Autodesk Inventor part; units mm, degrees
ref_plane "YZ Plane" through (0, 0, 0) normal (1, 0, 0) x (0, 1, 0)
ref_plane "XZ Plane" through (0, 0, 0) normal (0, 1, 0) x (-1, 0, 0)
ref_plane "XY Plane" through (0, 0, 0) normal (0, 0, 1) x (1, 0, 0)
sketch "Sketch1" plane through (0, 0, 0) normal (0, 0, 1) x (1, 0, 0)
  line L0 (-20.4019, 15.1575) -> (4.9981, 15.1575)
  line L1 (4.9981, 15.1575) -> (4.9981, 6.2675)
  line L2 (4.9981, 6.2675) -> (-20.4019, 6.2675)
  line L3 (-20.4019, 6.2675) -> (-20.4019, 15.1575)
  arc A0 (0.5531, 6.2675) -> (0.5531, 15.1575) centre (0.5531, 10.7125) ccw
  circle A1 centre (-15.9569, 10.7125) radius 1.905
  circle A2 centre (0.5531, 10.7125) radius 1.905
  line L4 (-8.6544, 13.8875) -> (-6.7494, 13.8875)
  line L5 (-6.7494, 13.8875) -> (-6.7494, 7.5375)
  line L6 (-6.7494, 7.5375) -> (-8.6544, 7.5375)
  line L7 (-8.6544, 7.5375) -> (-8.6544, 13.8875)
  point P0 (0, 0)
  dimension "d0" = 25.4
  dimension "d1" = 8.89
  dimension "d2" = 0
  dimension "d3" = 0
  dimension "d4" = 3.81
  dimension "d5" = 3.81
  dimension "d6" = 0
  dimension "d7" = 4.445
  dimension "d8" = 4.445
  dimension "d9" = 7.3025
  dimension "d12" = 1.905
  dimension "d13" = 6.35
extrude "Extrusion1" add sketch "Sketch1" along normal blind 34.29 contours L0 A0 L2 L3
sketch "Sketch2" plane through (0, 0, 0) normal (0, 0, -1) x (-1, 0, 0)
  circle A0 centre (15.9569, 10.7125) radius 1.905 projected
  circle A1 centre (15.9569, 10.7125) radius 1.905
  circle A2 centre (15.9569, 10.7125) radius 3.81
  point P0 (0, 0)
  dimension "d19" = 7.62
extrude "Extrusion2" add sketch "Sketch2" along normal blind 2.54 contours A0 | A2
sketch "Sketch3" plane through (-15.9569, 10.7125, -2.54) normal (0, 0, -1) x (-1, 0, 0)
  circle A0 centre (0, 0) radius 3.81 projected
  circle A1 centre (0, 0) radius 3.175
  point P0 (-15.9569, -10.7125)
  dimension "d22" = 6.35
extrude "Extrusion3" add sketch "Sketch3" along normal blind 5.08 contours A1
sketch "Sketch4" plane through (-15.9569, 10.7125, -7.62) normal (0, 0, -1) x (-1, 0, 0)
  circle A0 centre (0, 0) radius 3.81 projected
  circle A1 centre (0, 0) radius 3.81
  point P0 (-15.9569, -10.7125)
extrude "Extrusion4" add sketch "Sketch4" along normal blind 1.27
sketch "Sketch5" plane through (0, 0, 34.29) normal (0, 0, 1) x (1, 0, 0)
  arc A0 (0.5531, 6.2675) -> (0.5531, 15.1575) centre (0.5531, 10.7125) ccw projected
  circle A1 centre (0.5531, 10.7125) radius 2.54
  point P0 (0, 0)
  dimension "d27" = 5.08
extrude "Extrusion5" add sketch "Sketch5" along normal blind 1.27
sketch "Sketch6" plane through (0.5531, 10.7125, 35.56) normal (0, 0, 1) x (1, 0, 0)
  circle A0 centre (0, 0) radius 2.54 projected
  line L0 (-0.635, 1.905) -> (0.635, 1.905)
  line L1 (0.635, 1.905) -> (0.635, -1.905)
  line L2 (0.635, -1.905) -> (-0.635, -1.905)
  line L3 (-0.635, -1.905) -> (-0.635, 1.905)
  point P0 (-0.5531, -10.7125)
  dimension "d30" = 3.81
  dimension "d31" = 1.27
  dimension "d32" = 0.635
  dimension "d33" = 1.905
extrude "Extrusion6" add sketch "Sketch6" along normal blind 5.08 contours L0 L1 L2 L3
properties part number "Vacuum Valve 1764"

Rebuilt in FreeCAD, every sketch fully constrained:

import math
import FreeCAD as App
import Part
import Sketcher
from FreeCAD import Vector
Q = App.Units.Quantity

doc = App.newDocument("Part")
body = doc.addObject("PartDesign::Body", "Body")

# Sketch on XY plane
sketch1 = body.newObject("Sketcher::SketchObject", "Sketch")
sketch1.AttachmentSupport = (doc.getObject("XY_Plane"), [""])
sketch1.MapMode = "FlatFace"
sketch1.addGeometry([
    Part.LineSegment(Vector(0.5531, 15.1575, 0), Vector(-20.4019, 15.1575, 0)),  # 0
    Part.LineSegment(Vector(-20.4019, 15.1575, 0), Vector(-20.4019, 6.2675, 0)),  # 1
    Part.LineSegment(Vector(-20.4019, 6.2675, 0), Vector(0.5531, 6.2675, 0)),  # 2
    Part.ArcOfCircle(Part.Circle(Vector(0.5531, 10.7125, 0), Vector(0, 0, 1), 4.445), math.radians(-90), math.radians(90)),  # 3
    Part.Circle(Vector(-15.9569, 10.7125, 0), Vector(0, 0, 1), 1.905),  # 4
    Part.LineSegment(Vector(-8.6544, 7.5375, 0), Vector(-8.6544, 13.8875, 0)),  # 5
    Part.LineSegment(Vector(-8.6544, 13.8875, 0), Vector(-6.7494, 13.8875, 0)),  # 6
    Part.LineSegment(Vector(-6.7494, 13.8875, 0), Vector(-6.7494, 7.5375, 0)),  # 7
    Part.LineSegment(Vector(-6.7494, 7.5375, 0), Vector(-8.6544, 7.5375, 0)),  # 8
    Part.Circle(Vector(0.5531, 10.7125, 0), Vector(0, 0, 1), 1.905),  # 9
], False)
sketch1.addConstraint([
    Sketcher.Constraint("Coincident", 0, 2, 1, 1),
    Sketcher.Constraint("Coincident", 1, 2, 2, 1),
    Sketcher.Constraint("Tangent", 2, 2, 3, 1),
    Sketcher.Constraint("Tangent", 3, 2, 0, 1),
    Sketcher.Constraint("Coincident", 5, 2, 6, 1),
    Sketcher.Constraint("Coincident", 6, 2, 7, 1),
    Sketcher.Constraint("Coincident", 7, 2, 8, 1),
    Sketcher.Constraint("Coincident", 8, 2, 5, 1),
    Sketcher.Constraint("Horizontal", 0),
    Sketcher.Constraint("Vertical", 1),
    Sketcher.Constraint("Horizontal", 2),
    Sketcher.Constraint("Vertical", 5),
    Sketcher.Constraint("Horizontal", 6),
    Sketcher.Constraint("Vertical", 7),
    Sketcher.Constraint("Horizontal", 8),
    Sketcher.Constraint("Coincident", 9, 3, 3, 3),
    Sketcher.Constraint("Equal", 4, 9),
    Sketcher.Constraint("Horizontal", 3, 3, 4, 3),
    Sketcher.Constraint("Diameter", 4, Q("0.15 in")),
    Sketcher.Constraint("Radius", 3, Q("0.175 in")),
    Sketcher.Constraint("DistanceY", 5, 1, 5, 2, Q("0.25 in")),
    Sketcher.Constraint("DistanceX", 6, 1, 6, 2, Q("0.075 in")),
    Sketcher.Constraint("DistanceX", 0, 2, 4, 3, Q("0.175 in")),
    Sketcher.Constraint("DistanceX", 4, 3, 5, 2, Q("0.2875 in")),
    Sketcher.Constraint("DistanceX", 6, 2, 3, 2, Q("0.2875 in")),
    Sketcher.Constraint("DistanceY", 5, 2, 3, 2, Q("0.05 in")),
    Sketcher.Constraint("DistanceX", -1, 1, 3, 3, Q("0.553 mm")),
    Sketcher.Constraint("DistanceY", -1, 1, 3, 3, Q("10.7125 mm")),
])
pad1 = body.newObject("PartDesign::Pad", "Pad")
pad1.Profile = sketch1
pad1.Length = Q("1.35 in")

# Sketch on XY plane
sketch2 = body.newObject("Sketcher::SketchObject", "Sketch001")
sketch2.AttachmentSupport = (doc.getObject("XY_Plane"), [""])
sketch2.MapMode = "FlatFace"
sketch2.addGeometry(Part.Circle(Vector(-15.9569, 10.7125, 0), Vector(0, 0, 1), 3.81), False)
sketch2.addConstraint([
    Sketcher.Constraint("Diameter", 0, Q("0.3 in")),
    Sketcher.Constraint("DistanceX", 0, 3, -1, 1, Q("15.957 mm")),
    Sketcher.Constraint("DistanceY", -1, 1, 0, 3, Q("10.7125 mm")),
])
pad2 = body.newObject("PartDesign::Pad", "Pad001")
pad2.Profile = sketch2
pad2.Length = Q("0.1 in")
pad2.Reversed = True

# Sketch on XY plane
sketch3 = body.newObject("Sketcher::SketchObject", "Sketch002")
sketch3.AttachmentSupport = (doc.getObject("XY_Plane"), [""])
sketch3.MapMode = "FlatFace"
sketch3.AttachmentOffset = App.Placement(Vector(0, 0, -0.1 * 25.4), App.Rotation())
sketch3.addGeometry(Part.Circle(Vector(-15.9569, 10.7125, 0), Vector(0, 0, 1), 3.175), False)
sketch3.addConstraint([
    Sketcher.Constraint("Diameter", 0, Q("0.25 in")),
    Sketcher.Constraint("DistanceX", 0, 3, -1, 1, Q("15.957 mm")),
    Sketcher.Constraint("DistanceY", -1, 1, 0, 3, Q("10.7125 mm")),
])
pad3 = body.newObject("PartDesign::Pad", "Pad002")
pad3.Profile = sketch3
pad3.Length = Q("0.2 in")
pad3.Reversed = True

# Sketch on XY plane
sketch4 = body.newObject("Sketcher::SketchObject", "Sketch003")
sketch4.AttachmentSupport = (doc.getObject("XY_Plane"), [""])
sketch4.MapMode = "FlatFace"
sketch4.AttachmentOffset = App.Placement(Vector(0, 0, -0.3 * 25.4), App.Rotation())
sketch4.addGeometry(Part.Circle(Vector(-15.9569, 10.7125, 0), Vector(0, 0, 1), 3.81), False)
sketch4.addConstraint([
    Sketcher.Constraint("Diameter", 0, Q("0.3 in")),
    Sketcher.Constraint("DistanceX", 0, 3, -1, 1, Q("15.957 mm")),
    Sketcher.Constraint("DistanceY", -1, 1, 0, 3, Q("10.7125 mm")),
])
pad4 = body.newObject("PartDesign::Pad", "Pad003")
pad4.Profile = sketch4
pad4.Length = Q("0.05 in")
pad4.Reversed = True

# Sketch on XY plane
sketch5 = body.newObject("Sketcher::SketchObject", "Sketch004")
sketch5.AttachmentSupport = (doc.getObject("XY_Plane"), [""])
sketch5.MapMode = "FlatFace"
sketch5.AttachmentOffset = App.Placement(Vector(0, 0, 1.35 * 25.4), App.Rotation())
sketch5.addGeometry(Part.Circle(Vector(0.5531, 10.7125, 0), Vector(0, 0, 1), 2.54), False)
sketch5.addConstraint([
    Sketcher.Constraint("Diameter", 0, Q("0.2 in")),
    Sketcher.Constraint("DistanceX", -1, 1, 0, 3, Q("0.553 mm")),
    Sketcher.Constraint("DistanceY", -1, 1, 0, 3, Q("10.7125 mm")),
])
pad5 = body.newObject("PartDesign::Pad", "Pad004")
pad5.Profile = sketch5
pad5.Length = Q("0.05 in")

# Sketch on XY plane
sketch6 = body.newObject("Sketcher::SketchObject", "Sketch005")
sketch6.AttachmentSupport = (doc.getObject("XY_Plane"), [""])
sketch6.MapMode = "FlatFace"
sketch6.AttachmentOffset = App.Placement(Vector(0, 0, 1.4 * 25.4), App.Rotation())
sketch6.addGeometry([
    Part.LineSegment(Vector(1.1881, 12.6175, 0), Vector(-0.0819, 12.6175, 0)),
    Part.LineSegment(Vector(-0.0819, 12.6175, 0), Vector(-0.0819, 8.8075, 0)),
    Part.LineSegment(Vector(-0.0819, 8.8075, 0), Vector(1.1881, 8.8075, 0)),
    Part.LineSegment(Vector(1.1881, 8.8075, 0), Vector(1.1881, 12.6175, 0)),
], False)
sketch6.addConstraint([
    Sketcher.Constraint("Coincident", 0, 2, 1, 1),
    Sketcher.Constraint("Coincident", 1, 2, 2, 1),
    Sketcher.Constraint("Coincident", 2, 2, 3, 1),
    Sketcher.Constraint("Coincident", 3, 2, 0, 1),
    Sketcher.Constraint("Horizontal", 0),
    Sketcher.Constraint("Vertical", 1),
    Sketcher.Constraint("Horizontal", 2),
    Sketcher.Constraint("Vertical", 3),
    Sketcher.Constraint("DistanceX", 0, 2, 0, 1, Q("0.05 in")),
    Sketcher.Constraint("DistanceY", 1, 2, 1, 1, Q("0.15 in")),
    Sketcher.Constraint("DistanceX", 0, 2, -1, 1, Q("0.082 mm")),
    Sketcher.Constraint("DistanceY", -1, 1, 0, 2, Q("12.6175 mm")),
])
pad6 = body.newObject("PartDesign::Pad", "Pad005")
pad6.Profile = sketch6
pad6.Length = Q("0.2 in")

doc.recompute()
